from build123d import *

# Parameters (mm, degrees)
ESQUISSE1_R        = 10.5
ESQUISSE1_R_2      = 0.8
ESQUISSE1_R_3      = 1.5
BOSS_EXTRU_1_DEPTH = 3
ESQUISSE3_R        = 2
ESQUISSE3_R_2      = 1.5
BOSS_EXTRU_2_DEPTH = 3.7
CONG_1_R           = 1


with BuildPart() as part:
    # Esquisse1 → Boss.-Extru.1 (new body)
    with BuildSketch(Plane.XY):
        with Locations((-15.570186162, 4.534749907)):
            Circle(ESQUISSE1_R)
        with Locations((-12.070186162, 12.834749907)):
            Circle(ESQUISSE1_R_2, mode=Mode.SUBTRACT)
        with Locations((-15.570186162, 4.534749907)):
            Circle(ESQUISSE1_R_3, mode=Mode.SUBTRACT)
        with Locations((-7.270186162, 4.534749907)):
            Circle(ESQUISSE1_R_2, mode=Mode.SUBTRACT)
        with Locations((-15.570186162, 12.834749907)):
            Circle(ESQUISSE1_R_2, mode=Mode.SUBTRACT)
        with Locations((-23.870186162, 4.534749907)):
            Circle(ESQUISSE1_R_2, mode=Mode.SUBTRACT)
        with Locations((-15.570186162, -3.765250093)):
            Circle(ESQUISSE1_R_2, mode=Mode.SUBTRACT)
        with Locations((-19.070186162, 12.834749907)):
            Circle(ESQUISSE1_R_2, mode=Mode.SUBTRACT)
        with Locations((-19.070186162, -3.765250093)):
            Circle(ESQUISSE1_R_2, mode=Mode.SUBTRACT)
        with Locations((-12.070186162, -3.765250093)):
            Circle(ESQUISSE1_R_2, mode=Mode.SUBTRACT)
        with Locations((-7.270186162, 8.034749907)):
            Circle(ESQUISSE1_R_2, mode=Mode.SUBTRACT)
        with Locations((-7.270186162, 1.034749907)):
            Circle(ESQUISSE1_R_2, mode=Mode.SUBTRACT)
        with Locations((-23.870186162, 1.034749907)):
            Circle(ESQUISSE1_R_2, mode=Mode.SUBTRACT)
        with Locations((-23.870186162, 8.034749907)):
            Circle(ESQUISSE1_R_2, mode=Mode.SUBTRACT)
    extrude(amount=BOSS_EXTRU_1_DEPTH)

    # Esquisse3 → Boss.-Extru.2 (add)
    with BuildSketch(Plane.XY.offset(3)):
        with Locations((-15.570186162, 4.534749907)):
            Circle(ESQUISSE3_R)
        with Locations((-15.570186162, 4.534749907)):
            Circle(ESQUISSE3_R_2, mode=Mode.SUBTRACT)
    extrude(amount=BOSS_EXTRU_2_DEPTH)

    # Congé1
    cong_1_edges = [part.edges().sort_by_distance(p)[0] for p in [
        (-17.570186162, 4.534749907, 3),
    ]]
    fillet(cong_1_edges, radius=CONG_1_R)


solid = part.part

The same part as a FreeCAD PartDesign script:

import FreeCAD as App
import Part
import Sketcher
Q = App.Units.Quantity


def edges_at(feature, points):
    """Names of the edges that pass closest to the given points."""
    edges = feature.Shape.Edges
    near = lambda p: min(range(len(edges)), key=lambda i: edges[i].distToShape(Part.Vertex(*p))[0])
    return sorted({f"Edge{near(p) + 1}" for p in points})

doc = App.newDocument("Part")
body = doc.addObject("PartDesign::Body", "Body")

# Sketch on XY plane
sketch1 = doc.addObject("Sketcher::SketchObject", "Sketch")
body.addObject(sketch1)
sketch1.AttachmentSupport = (doc.XY_Plane, [""])
sketch1.MapMode = "FlatFace"
sketch1.addGeometry(Part.Circle(App.Vector(-15.6, 4.5, 0), App.Vector(0, 0, 1), 10.5), False)
sketch1.addGeometry(Part.Circle(App.Vector(-19.1, -3.8, 0), App.Vector(0, 0, 1), 0.8), False)
sketch1.addGeometry(Part.Circle(App.Vector(-15.6, -3.8, 0), App.Vector(0, 0, 1), 0.8), False)
sketch1.addGeometry(Part.Circle(App.Vector(-23.9, 1, 0), App.Vector(0, 0, 1), 0.8), False)
sketch1.addGeometry(Part.Circle(App.Vector(-12.1, -3.8, 0), App.Vector(0, 0, 1), 0.8), False)
sketch1.addGeometry(Part.Circle(App.Vector(-7.3, 1, 0), App.Vector(0, 0, 1), 0.8), False)
sketch1.addGeometry(Part.Circle(App.Vector(-23.9, 4.5, 0), App.Vector(0, 0, 1), 0.8), False)
sketch1.addGeometry(Part.Circle(App.Vector(-23.9, 8, 0), App.Vector(0, 0, 1), 0.8), False)
sketch1.addGeometry(Part.Circle(App.Vector(-15.6, 4.5, 0), App.Vector(0, 0, 1), 1.5), False)
sketch1.addGeometry(Part.Circle(App.Vector(-19.1, 12.8, 0), App.Vector(0, 0, 1), 0.8), False)
sketch1.addGeometry(Part.Circle(App.Vector(-15.6, 12.8, 0), App.Vector(0, 0, 1), 0.8), False)
sketch1.addGeometry(Part.Circle(App.Vector(-7.3, 4.5, 0), App.Vector(0, 0, 1), 0.8), False)
sketch1.addGeometry(Part.Circle(App.Vector(-7.3, 8, 0), App.Vector(0, 0, 1), 0.8), False)
sketch1.addGeometry(Part.Circle(App.Vector(-12.1, 12.8, 0), App.Vector(0, 0, 1), 0.8), False)
sketch1.addConstraint(Sketcher.Constraint("Coincident", 8, 3, 0, 3))
sketch1.addConstraint(Sketcher.Constraint("Equal", 1, 2))
sketch1.addConstraint(Sketcher.Constraint("Equal", 2, 3))
sketch1.addConstraint(Sketcher.Constraint("Equal", 3, 4))
sketch1.addConstraint(Sketcher.Constraint("Equal", 4, 5))
sketch1.addConstraint(Sketcher.Constraint("Equal", 5, 6))
sketch1.addConstraint(Sketcher.Constraint("Equal", 6, 7))
sketch1.addConstraint(Sketcher.Constraint("Equal", 7, 9))
sketch1.addConstraint(Sketcher.Constraint("Equal", 9, 10))
sketch1.addConstraint(Sketcher.Constraint("Equal", 10, 11))
sketch1.addConstraint(Sketcher.Constraint("Equal", 11, 12))
sketch1.addConstraint(Sketcher.Constraint("Equal", 12, 13))
sketch1.addConstraint(Sketcher.Constraint("Horizontal", 1, 3, 2, 3))
sketch1.addConstraint(Sketcher.Constraint("Horizontal", 2, 3, 4, 3))
sketch1.addConstraint(Sketcher.Constraint("Horizontal", 3, 3, 5, 3))
sketch1.addConstraint(Sketcher.Constraint("Horizontal", 0, 3, 6, 3))
sketch1.addConstraint(Sketcher.Constraint("Horizontal", 9, 3, 10, 3))
sketch1.addConstraint(Sketcher.Constraint("Horizontal", 8, 3, 11, 3))
sketch1.addConstraint(Sketcher.Constraint("Horizontal", 7, 3, 12, 3))
sketch1.addConstraint(Sketcher.Constraint("Horizontal", 10, 3, 13, 3))
sketch1.addConstraint(Sketcher.Constraint("Vertical", 0, 3, 2, 3))
sketch1.addConstraint(Sketcher.Constraint("Vertical", 3, 3, 6, 3))
sketch1.addConstraint(Sketcher.Constraint("Vertical", 6, 3, 7, 3))
sketch1.addConstraint(Sketcher.Constraint("Vertical", 1, 3, 9, 3))
sketch1.addConstraint(Sketcher.Constraint("Vertical", 8, 3, 10, 3))
sketch1.addConstraint(Sketcher.Constraint("Vertical", 5, 3, 11, 3))
sketch1.addConstraint(Sketcher.Constraint("Vertical", 11, 3, 12, 3))
sketch1.addConstraint(Sketcher.Constraint("Vertical", 4, 3, 13, 3))
sketch1.addConstraint(Sketcher.Constraint("Diameter", 0, Q("21 mm")))
sketch1.addConstraint(Sketcher.Constraint("Diameter", 8, Q("3 mm")))
sketch1.addConstraint(Sketcher.Constraint("Diameter", 1, Q("1.6 mm")))
sketch1.addConstraint(Sketcher.Constraint("DistanceX", 1, 3, 4, 3, Q("7 mm")))
sketch1.addConstraint(Sketcher.Constraint("DistanceY", 3, 3, 7, 3, Q("7 mm")))
sketch1.addConstraint(Sketcher.Constraint("DistanceX", 1, 3, 0, 3, Q("3.5 mm")))
sketch1.addConstraint(Sketcher.Constraint("DistanceY", 1, 3, 0, 3, Q("8.3 mm")))
sketch1.addConstraint(Sketcher.Constraint("DistanceX", 3, 3, 1, 3, Q("4.8 mm")))
sketch1.addConstraint(Sketcher.Constraint("DistanceY", 1, 3, 3, 3, Q("4.8 mm")))
sketch1.addConstraint(Sketcher.Constraint("DistanceX", 4, 3, 5, 3, Q("4.8 mm")))
sketch1.addConstraint(Sketcher.Constraint("DistanceY", 7, 3, 9, 3, Q("4.8 mm")))
sketch1.addConstraint(Sketcher.Constraint("DistanceY", -1, 1, 0, 3, Q("4.53475 mm")))
sketch1.addConstraint(Sketcher.Constraint("DistanceX", 0, 3, -1, 1, Q("15.570186 mm")))
pad1 = doc.addObject("PartDesign::Pad", "Pad")
body.addObject(pad1)
pad1.Profile = sketch1
pad1.Length = 3

# Sketch on XY plane
sketch2 = doc.addObject("Sketcher::SketchObject", "Sketch001")
body.addObject(sketch2)
sketch2.AttachmentSupport = (doc.XY_Plane, [""])
sketch2.MapMode = "FlatFace"
sketch2.AttachmentOffset = App.Placement(App.Vector(0, 0, 3), App.Rotation())
sketch2.addGeometry(Part.Circle(App.Vector(-15.6, 4.5, 0), App.Vector(0, 0, 1), 2), False)
sketch2.addGeometry(Part.Circle(App.Vector(-15.6, 4.5, 0), App.Vector(0, 0, 1), 1.5), False)
sketch2.addConstraint(Sketcher.Constraint("Coincident", 1, 3, 0, 3))
sketch2.addConstraint(Sketcher.Constraint("Diameter", 0, Q("4 mm")))
sketch2.addConstraint(Sketcher.Constraint("Diameter", 1, Q("3 mm")))
sketch2.addConstraint(Sketcher.Constraint("DistanceY", -1, 1, 0, 3, Q("4.53475 mm")))
sketch2.addConstraint(Sketcher.Constraint("DistanceX", 0, 3, -1, 1, Q("15.570186 mm")))
pad2 = doc.addObject("PartDesign::Pad", "Pad001")
body.addObject(pad2)
pad2.Profile = sketch2
pad2.Length = 3.7
doc.recompute()

fillet = doc.addObject("PartDesign::Fillet", "Fillet")
body.addObject(fillet)
fillet.Base = (pad2, edges_at(pad2, [(-17.57, 4.535, 3)]))
fillet.Radius = 1

doc.recompute()
